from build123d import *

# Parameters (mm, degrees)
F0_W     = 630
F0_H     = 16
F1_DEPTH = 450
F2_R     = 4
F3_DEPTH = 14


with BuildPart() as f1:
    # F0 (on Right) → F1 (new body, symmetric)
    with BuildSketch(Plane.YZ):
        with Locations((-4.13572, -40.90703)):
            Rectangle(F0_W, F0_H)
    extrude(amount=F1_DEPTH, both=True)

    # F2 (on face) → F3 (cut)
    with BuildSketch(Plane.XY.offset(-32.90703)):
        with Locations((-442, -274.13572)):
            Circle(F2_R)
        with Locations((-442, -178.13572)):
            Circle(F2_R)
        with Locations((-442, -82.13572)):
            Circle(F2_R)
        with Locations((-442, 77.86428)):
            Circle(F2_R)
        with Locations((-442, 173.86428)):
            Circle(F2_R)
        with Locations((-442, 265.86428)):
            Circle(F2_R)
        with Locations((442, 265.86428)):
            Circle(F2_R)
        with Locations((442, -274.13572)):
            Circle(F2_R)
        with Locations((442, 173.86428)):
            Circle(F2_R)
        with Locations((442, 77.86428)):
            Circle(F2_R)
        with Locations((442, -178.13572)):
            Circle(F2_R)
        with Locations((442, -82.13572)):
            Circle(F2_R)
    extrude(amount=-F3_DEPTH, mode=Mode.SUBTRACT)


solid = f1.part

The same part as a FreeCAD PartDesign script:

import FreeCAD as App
import Part
import Sketcher
from FreeCAD import Vector

doc = App.newDocument("Part")
body = doc.addObject("PartDesign::Body", "Body")

# Sketch on YZ plane
sketch1 = body.newObject("Sketcher::SketchObject", "Sketch")
sketch1.AttachmentSupport = (doc.getObject("YZ_Plane"), [""])
sketch1.MapMode = "FlatFace"
sketch1.addGeometry([
    Part.LineSegment(Vector(-319, -33, 0), Vector(-319, -49, 0)),
    Part.LineSegment(Vector(-319, -49, 0), Vector(311, -49, 0)),
    Part.LineSegment(Vector(311, -49, 0), Vector(311, -33, 0)),
    Part.LineSegment(Vector(311, -33, 0), Vector(-319, -33, 0)),
], False)
sketch1.addConstraint([
    Sketcher.Constraint("Coincident", 0, 2, 1, 1),
    Sketcher.Constraint("Coincident", 1, 2, 2, 1),
    Sketcher.Constraint("Coincident", 2, 2, 3, 1),
    Sketcher.Constraint("Coincident", 3, 2, 0, 1),
    Sketcher.Constraint("Vertical", 0),
    Sketcher.Constraint("Horizontal", 1),
    Sketcher.Constraint("Vertical", 2),
    Sketcher.Constraint("Horizontal", 3),
    Sketcher.Constraint("DistanceX", 1, 1, 1, 2, 630.0),
    Sketcher.Constraint("DistanceY", 0, 2, 0, 1, 16.0),
    Sketcher.Constraint("DistanceX", 0, 2, -1, 1, 319.13572),
    Sketcher.Constraint("DistanceY", 0, 2, -1, 1, 48.90703),
])
pad1 = body.newObject("PartDesign::Pad", "Pad")
pad1.Profile = sketch1
pad1.Length = 900
pad1.Midplane = True

# Sketch on XY plane
sketch2 = body.newObject("Sketcher::SketchObject", "Sketch001")
sketch2.AttachmentSupport = (doc.getObject("XY_Plane"), [""])
sketch2.MapMode = "FlatFace"
sketch2.AttachmentOffset = App.Placement(Vector(0, 0, -32.90703), App.Rotation())
sketch2.addGeometry([
    Part.Circle(Vector(-442, -274.1, 0), Vector(0, 0, 1), 4),  # 0
    Part.Circle(Vector(-442, -178.1, 0), Vector(0, 0, 1), 4),  # 1
    Part.Circle(Vector(-442, -82.1, 0), Vector(0, 0, 1), 4),  # 2
    Part.Circle(Vector(-442, 77.9, 0), Vector(0, 0, 1), 4),  # 3
    Part.Circle(Vector(-442, 173.9, 0), Vector(0, 0, 1), 4),  # 4
    Part.Circle(Vector(-442, 265.9, 0), Vector(0, 0, 1), 4),  # 5
    Part.Circle(Vector(442, 265.9, 0), Vector(0, 0, 1), 4),  # 6
    Part.Circle(Vector(442, -274.1, 0), Vector(0, 0, 1), 4),  # 7
    Part.Circle(Vector(442, 173.9, 0), Vector(0, 0, 1), 4),  # 8
    Part.Circle(Vector(442, 77.9, 0), Vector(0, 0, 1), 4),  # 9
    Part.Circle(Vector(442, -178.1, 0), Vector(0, 0, 1), 4),  # 10
    Part.Circle(Vector(442, -82.1, 0), Vector(0, 0, 1), 4),  # 11
], False)
sketch2.addConstraint([
    Sketcher.Constraint("Equal", 0, 1),
    Sketcher.Constraint("Equal", 1, 2),
    Sketcher.Constraint("Equal", 2, 3),
    Sketcher.Constraint("Equal", 3, 4),
    Sketcher.Constraint("Equal", 4, 5),
    Sketcher.Constraint("Equal", 5, 6),
    Sketcher.Constraint("Equal", 6, 7),
    Sketcher.Constraint("Equal", 7, 8),
    Sketcher.Constraint("Equal", 8, 9),
    Sketcher.Constraint("Equal", 9, 10),
    Sketcher.Constraint("Equal", 10, 11),
    Sketcher.Constraint("Symmetric", 5, 3, 6, 3, -2),
    Sketcher.Constraint("Symmetric", 0, 3, 7, 3, -2),
    Sketcher.Constraint("Symmetric", 4, 3, 8, 3, -2),
    Sketcher.Constraint("Symmetric", 3, 3, 9, 3, -2),
    Sketcher.Constraint("Symmetric", 1, 3, 10, 3, -2),
    Sketcher.Constraint("Symmetric", 2, 3, 11, 3, -2),
    Sketcher.Constraint("Vertical", 0, 3, 1, 3),
    Sketcher.Constraint("Vertical", 1, 3, 2, 3),
    Sketcher.Constraint("Vertical", 2, 3, 3, 3),
    Sketcher.Constraint("Vertical", 3, 3, 4, 3),
    Sketcher.Constraint("Vertical", 4, 3, 5, 3),
    Sketcher.Constraint("Diameter", 0, 8.0),
    Sketcher.Constraint("DistanceX", 0, 3, -1, 1, 442.0),
    Sketcher.Constraint("DistanceY", 0, 3, 1, 3, 96.0),
    Sketcher.Constraint("DistanceY", 1, 3, 2, 3, 96.0),
    Sketcher.Constraint("DistanceY", 2, 3, 3, 3, 160.0),
    Sketcher.Constraint("DistanceY", 3, 3, 4, 3, 96.0),
    Sketcher.Constraint("DistanceY", 4, 3, 5, 3, 92.0),
    Sketcher.Constraint("DistanceY", 0, 3, -1, 1, 274.13572),
])
pocket1 = body.newObject("PartDesign::Pocket", "Pocket")
pocket1.Profile = sketch2
pocket1.Length = 14

doc.recompute()
